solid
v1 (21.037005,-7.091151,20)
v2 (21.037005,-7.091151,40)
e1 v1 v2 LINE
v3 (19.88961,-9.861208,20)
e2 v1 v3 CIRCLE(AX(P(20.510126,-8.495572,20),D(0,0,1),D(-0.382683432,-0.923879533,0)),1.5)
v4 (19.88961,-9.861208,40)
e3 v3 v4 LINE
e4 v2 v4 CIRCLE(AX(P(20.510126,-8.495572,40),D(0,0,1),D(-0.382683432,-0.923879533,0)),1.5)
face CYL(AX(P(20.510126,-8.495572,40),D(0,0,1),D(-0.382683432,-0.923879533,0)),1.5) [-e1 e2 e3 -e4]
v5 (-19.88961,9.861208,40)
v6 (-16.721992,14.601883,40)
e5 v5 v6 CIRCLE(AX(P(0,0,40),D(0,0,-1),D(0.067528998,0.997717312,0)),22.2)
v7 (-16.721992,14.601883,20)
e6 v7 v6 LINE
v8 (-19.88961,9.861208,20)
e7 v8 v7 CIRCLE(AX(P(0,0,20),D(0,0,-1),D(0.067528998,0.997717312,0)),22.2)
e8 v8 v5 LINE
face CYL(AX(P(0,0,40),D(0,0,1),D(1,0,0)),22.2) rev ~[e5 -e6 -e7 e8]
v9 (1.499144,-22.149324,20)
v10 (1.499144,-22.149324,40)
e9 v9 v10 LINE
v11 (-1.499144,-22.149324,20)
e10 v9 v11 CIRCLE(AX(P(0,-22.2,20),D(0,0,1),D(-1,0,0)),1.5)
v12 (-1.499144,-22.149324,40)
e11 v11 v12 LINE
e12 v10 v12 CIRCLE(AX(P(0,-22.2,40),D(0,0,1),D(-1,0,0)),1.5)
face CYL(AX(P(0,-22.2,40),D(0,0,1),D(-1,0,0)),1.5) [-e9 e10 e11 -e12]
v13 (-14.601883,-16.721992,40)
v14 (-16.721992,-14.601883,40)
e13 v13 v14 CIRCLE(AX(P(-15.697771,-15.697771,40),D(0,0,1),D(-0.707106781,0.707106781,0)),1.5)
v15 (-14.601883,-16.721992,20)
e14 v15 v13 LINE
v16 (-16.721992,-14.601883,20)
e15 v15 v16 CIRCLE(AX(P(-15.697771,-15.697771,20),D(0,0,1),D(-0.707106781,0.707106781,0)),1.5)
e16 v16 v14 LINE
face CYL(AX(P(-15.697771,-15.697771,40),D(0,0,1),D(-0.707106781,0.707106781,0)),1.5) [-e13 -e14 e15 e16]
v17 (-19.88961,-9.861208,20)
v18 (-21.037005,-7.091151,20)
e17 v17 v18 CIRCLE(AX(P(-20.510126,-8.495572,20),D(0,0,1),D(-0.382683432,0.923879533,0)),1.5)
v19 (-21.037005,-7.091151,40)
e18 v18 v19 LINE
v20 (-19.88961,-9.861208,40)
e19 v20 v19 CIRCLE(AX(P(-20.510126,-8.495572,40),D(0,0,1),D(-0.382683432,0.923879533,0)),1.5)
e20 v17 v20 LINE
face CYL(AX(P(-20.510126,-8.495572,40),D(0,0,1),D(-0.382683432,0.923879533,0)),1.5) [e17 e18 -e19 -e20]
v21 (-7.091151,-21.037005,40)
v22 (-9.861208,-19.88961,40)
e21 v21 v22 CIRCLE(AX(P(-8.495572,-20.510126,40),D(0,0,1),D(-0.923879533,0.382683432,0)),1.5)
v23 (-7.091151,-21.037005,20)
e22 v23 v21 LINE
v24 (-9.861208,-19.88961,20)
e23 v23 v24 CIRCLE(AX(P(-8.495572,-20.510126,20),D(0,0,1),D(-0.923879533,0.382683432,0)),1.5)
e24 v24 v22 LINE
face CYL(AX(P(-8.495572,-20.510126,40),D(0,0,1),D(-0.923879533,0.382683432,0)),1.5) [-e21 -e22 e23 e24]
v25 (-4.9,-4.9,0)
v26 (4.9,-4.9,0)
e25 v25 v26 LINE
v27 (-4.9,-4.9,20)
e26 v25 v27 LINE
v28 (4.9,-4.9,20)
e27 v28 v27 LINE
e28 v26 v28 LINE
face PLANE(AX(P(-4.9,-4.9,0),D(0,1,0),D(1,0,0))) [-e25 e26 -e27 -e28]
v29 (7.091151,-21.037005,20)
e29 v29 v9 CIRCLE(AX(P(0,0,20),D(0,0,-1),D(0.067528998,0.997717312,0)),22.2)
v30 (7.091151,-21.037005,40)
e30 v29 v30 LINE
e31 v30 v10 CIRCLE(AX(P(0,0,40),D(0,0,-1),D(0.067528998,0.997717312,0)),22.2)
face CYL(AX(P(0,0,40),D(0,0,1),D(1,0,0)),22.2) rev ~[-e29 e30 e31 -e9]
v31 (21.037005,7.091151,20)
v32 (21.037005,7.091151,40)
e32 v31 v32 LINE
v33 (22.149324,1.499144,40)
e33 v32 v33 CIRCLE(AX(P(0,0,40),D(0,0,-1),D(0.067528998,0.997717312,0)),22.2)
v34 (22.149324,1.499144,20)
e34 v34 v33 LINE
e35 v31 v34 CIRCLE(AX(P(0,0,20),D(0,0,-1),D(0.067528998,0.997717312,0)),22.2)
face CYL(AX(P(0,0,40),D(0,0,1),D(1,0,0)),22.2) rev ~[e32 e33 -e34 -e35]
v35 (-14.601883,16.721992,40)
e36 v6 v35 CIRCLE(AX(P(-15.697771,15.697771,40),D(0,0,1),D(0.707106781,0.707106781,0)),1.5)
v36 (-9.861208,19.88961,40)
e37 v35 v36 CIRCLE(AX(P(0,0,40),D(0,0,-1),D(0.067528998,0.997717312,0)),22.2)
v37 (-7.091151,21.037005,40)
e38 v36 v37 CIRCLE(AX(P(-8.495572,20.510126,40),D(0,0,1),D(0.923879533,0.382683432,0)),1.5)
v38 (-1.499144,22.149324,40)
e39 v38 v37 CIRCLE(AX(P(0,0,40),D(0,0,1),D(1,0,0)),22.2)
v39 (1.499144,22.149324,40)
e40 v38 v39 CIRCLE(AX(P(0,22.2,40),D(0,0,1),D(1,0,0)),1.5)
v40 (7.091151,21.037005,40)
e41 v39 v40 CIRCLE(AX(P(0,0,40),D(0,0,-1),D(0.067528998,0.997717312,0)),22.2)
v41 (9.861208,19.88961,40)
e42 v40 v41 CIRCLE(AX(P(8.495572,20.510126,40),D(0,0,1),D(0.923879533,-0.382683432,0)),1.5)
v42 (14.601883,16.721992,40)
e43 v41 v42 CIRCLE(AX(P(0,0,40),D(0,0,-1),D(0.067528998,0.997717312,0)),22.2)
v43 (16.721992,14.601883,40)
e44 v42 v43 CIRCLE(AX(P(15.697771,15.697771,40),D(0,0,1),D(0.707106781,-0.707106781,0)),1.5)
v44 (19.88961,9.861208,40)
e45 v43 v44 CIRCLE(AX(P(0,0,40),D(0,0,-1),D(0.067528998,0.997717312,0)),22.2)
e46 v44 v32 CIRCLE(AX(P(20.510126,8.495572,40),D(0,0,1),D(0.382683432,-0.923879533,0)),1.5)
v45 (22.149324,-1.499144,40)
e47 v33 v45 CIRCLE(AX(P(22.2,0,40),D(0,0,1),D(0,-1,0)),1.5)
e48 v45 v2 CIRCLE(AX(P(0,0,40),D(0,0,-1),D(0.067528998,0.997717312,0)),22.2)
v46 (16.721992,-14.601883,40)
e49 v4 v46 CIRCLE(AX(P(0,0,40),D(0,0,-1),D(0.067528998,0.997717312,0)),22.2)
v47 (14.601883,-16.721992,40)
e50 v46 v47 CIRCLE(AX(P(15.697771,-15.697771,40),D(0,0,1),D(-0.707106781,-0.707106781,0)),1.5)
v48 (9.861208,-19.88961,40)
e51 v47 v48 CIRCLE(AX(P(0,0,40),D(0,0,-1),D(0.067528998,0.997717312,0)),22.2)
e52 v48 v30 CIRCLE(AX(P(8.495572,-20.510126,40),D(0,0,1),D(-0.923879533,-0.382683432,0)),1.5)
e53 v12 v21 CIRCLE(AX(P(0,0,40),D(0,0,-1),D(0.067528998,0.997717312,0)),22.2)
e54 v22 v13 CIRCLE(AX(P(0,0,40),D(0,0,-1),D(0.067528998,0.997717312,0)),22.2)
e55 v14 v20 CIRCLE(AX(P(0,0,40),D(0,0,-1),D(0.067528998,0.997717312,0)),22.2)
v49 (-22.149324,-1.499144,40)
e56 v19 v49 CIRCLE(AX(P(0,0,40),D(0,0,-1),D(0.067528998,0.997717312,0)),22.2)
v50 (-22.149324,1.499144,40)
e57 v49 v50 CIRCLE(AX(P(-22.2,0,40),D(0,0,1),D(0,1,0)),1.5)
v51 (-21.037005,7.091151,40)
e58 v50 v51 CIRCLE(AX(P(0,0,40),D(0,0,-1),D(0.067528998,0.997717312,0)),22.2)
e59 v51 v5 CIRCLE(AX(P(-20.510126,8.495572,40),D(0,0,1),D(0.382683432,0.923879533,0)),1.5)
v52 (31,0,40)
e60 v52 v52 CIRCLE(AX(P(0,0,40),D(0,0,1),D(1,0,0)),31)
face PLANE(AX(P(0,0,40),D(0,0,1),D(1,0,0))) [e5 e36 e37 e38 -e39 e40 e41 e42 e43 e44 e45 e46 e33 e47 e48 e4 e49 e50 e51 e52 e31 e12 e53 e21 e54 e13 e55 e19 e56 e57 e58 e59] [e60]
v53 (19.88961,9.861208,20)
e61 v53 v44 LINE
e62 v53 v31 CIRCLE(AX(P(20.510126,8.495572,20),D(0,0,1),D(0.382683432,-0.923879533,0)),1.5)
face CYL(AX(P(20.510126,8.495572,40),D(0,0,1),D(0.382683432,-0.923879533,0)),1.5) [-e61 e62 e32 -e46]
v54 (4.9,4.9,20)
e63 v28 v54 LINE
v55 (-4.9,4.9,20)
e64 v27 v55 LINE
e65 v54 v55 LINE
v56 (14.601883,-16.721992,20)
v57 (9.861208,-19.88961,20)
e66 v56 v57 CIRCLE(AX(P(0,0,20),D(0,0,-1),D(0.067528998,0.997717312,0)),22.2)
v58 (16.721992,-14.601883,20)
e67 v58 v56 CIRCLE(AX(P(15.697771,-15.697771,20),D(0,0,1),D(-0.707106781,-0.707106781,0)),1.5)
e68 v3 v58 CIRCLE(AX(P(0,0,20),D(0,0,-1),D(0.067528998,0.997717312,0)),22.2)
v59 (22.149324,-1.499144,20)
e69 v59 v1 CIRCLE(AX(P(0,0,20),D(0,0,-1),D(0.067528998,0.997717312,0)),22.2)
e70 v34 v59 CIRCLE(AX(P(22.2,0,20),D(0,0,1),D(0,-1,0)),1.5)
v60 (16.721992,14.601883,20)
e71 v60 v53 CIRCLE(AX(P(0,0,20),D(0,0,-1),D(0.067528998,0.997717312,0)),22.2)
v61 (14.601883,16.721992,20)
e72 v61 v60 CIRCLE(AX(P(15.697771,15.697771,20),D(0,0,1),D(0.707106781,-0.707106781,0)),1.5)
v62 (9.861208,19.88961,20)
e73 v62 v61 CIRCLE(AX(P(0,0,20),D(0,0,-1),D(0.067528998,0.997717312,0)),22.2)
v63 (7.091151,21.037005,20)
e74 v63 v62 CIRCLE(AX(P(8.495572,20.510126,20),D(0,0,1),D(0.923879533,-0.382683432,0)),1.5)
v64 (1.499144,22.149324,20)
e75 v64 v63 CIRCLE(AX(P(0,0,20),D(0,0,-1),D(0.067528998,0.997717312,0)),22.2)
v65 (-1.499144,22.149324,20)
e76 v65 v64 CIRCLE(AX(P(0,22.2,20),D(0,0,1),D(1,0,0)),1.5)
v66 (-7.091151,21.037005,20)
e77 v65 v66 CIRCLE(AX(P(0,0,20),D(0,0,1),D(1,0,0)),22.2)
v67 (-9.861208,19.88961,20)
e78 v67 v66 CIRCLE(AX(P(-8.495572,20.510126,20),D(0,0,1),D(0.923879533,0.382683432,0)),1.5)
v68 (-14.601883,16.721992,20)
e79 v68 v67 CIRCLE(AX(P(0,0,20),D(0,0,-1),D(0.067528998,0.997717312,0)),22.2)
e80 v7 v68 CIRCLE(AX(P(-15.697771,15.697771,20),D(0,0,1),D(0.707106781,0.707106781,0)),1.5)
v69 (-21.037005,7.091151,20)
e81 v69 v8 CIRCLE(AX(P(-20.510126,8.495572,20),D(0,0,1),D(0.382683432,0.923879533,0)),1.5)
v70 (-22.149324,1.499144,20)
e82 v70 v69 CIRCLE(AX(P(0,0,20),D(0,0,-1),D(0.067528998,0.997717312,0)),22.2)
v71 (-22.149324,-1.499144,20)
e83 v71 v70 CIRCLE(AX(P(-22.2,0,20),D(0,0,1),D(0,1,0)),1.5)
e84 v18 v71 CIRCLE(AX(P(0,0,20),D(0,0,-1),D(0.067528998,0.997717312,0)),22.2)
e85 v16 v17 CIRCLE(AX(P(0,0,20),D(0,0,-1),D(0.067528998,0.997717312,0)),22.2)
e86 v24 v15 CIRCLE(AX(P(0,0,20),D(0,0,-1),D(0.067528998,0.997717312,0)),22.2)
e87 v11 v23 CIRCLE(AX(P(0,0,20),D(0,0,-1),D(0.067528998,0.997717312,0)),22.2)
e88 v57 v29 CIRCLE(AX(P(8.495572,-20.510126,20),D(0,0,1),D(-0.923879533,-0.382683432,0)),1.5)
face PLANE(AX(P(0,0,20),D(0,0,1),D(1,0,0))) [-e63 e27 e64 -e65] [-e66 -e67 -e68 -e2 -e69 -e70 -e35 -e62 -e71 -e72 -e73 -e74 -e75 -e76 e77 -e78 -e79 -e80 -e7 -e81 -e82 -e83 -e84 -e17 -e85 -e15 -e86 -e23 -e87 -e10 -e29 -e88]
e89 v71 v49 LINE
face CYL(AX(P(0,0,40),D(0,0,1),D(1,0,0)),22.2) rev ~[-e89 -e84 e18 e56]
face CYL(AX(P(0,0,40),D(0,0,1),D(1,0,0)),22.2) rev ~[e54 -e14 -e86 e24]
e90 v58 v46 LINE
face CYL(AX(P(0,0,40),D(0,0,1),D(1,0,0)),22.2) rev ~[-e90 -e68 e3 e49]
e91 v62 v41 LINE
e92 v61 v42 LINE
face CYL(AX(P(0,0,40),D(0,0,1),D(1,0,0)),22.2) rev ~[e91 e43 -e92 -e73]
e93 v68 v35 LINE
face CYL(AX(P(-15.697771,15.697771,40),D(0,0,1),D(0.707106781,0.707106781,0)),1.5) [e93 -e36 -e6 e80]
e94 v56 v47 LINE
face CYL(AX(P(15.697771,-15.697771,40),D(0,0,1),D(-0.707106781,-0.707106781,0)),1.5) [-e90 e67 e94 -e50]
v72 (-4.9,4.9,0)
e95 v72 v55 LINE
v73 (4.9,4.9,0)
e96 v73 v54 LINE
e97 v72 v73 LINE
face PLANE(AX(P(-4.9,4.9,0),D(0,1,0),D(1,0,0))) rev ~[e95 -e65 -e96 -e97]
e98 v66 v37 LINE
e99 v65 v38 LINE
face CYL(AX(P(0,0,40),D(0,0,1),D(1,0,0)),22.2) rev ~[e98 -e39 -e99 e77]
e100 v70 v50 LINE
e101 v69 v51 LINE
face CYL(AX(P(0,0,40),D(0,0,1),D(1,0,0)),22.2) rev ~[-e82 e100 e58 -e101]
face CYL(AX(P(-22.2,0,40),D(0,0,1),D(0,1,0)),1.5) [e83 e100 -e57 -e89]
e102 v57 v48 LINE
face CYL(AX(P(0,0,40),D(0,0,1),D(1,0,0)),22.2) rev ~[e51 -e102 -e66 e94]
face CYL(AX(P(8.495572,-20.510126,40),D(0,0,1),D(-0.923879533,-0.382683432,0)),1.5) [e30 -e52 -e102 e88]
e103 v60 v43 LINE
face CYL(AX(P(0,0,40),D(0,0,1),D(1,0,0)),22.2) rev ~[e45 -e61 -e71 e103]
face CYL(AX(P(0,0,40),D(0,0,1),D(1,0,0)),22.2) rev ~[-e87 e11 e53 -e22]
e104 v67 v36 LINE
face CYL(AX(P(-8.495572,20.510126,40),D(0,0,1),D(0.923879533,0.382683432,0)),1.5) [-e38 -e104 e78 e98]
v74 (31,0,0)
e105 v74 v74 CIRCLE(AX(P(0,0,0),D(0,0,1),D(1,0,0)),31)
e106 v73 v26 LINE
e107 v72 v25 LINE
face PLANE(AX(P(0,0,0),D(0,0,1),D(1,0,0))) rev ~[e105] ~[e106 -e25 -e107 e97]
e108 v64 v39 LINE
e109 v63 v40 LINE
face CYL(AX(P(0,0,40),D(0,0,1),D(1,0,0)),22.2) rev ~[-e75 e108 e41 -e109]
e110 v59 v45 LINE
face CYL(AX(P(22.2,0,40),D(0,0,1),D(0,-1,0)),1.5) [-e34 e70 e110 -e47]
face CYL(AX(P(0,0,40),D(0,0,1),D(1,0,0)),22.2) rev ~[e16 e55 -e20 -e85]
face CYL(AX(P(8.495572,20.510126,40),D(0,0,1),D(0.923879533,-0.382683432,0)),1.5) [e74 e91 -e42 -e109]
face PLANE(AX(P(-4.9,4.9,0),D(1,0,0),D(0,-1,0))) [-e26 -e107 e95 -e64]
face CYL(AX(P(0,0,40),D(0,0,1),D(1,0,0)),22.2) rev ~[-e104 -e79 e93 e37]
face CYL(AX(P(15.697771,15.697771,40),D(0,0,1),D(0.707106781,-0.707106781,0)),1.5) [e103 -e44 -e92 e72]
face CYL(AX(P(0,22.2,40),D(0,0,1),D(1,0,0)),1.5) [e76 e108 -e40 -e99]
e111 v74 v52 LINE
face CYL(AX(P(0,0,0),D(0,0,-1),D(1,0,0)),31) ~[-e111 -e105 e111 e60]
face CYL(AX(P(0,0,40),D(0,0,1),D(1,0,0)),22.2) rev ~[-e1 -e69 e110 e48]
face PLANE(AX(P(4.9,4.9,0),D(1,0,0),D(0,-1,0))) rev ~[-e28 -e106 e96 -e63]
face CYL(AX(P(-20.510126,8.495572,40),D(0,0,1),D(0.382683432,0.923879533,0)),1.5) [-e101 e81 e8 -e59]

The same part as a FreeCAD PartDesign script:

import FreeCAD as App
import Part
import Sketcher

V = App.Vector
Q = App.Units.Quantity


def add_polygon(sketch, points):
    """Adds a closed chain of lines whose ends are joined by coincident constraints."""
    first, n = sketch.GeometryCount, len(points)
    for a, b in zip(points, points[1:] + points[:1]):
        sketch.addGeometry(Part.LineSegment(App.Vector(*a, 0), App.Vector(*b, 0)), False)
    for i in range(n):
        sketch.addConstraint(Sketcher.Constraint("Coincident", first + i, 2, first + (i + 1) % n, 1))

doc = App.newDocument("Part")
params = doc.addObject("Spreadsheet::Sheet", "Params")
for row, (alias, value) in enumerate([
    ("sketch1_diameter", "62 mm"),
    ("pad1_length", "40 mm"),
    ("sketch2_diameter", "44.4 mm"),
    ("pocket1_length", "20 mm"),
    ("sketch3_diameter", "3 mm"),
    ("pad2_length", "25 mm"),
    ("sketch4_width", "9.8 mm"),
], start=1):
    params.set(f"A{row}", alias)
    params.set(f"B{row}", "=" + value)
    params.setAlias(f"B{row}", alias)

body = doc.addObject("PartDesign::Body", "Body")

sketch1 = body.newObject("Sketcher::SketchObject", "Sketch")
sketch1.AttachmentSupport = (doc.getObject("XY_Plane"), [""])
sketch1.MapMode = "FlatFace"
sketch1.addGeometry(Part.Circle(V(0, 0, 0), V(0, 0, 1), 31), False)
sketch1.addConstraint([
    Sketcher.Constraint("Coincident", 0, 3, -1, 1),
    Sketcher.Constraint("Diameter", 0, Q("62 mm")),
])
sketch1.setExpression("Constraints[1]", "Params.sketch1_diameter")
pad1 = body.newObject("PartDesign::Pad", "Pad")
pad1.Profile = sketch1
pad1.setExpression("Length", "Params.pad1_length")

sketch2 = body.newObject("Sketcher::SketchObject", "Sketch001")
sketch2.AttachmentSupport = (doc.getObject("XY_Plane"), [""])
sketch2.MapMode = "FlatFace"
sketch2.AttachmentOffset = App.Placement(V(0, 0, 40), App.Rotation())
sketch2.addGeometry(Part.Circle(V(0, 0, 0), V(0, 0, 1), 22), False)
sketch2.addConstraint([
    Sketcher.Constraint("Coincident", 0, 3, -1, 1),
    Sketcher.Constraint("Diameter", 0, Q("44.4 mm")),
])
sketch2.setExpression("Constraints[1]", "Params.sketch2_diameter")
pocket1 = body.newObject("PartDesign::Pocket", "Pocket")
pocket1.Profile = sketch2
pocket1.setExpression("Length", "Params.pocket1_length")

sketch3 = body.newObject("Sketcher::SketchObject", "Sketch002")
sketch3.AttachmentSupport = (doc.getObject("XY_Plane"), [""])
sketch3.MapMode = "FlatFace"
sketch3.AttachmentOffset = App.Placement(V(0, 0, 40), App.Rotation())
sketch3.addGeometry(Part.Circle(V(0, 22.2, 0), V(0, 0, 1), 1.5), False)
sketch3.addConstraint([
    Sketcher.Constraint("PointOnObject", 0, 3, -2),
    Sketcher.Constraint("Diameter", 0, Q("3 mm")),
    Sketcher.Constraint("DistanceY", -1, 1, 0, 3, Q("22.2 mm")),
])
sketch3.setExpression("Constraints[1]", "Params.sketch3_diameter")
pad2 = body.newObject("PartDesign::Pad", "Pad001")
pad2.Profile = sketch3
pad2.setExpression("Length", "Params.pad2_length")
pad2.Reversed = True
doc.recompute()

polarpattern = body.newObject("PartDesign::PolarPattern", "PolarPattern")
polarpattern.Originals = [pad2]
polarpattern.Axis = (doc.getObject("Z_Axis"), [""])
polarpattern.Angle = 360
polarpattern.Occurrences = 16
body.Tip = polarpattern

sketch4 = body.newObject("Sketcher::SketchObject", "Sketch003")
sketch4.AttachmentSupport = (doc.getObject("XY_Plane"), [""])
sketch4.MapMode = "FlatFace"
add_polygon(sketch4, [(-5, -5), (-5, 5), (5, 5), (5, -5)])
sketch4.addConstraint([
    Sketcher.Constraint("Vertical", 0),
    Sketcher.Constraint("Horizontal", 1),
    Sketcher.Constraint("Vertical", 2),
    Sketcher.Constraint("Horizontal", 3),
    Sketcher.Constraint("Symmetric", 0, 2, 2, 2, -1, 1),
    Sketcher.Constraint("Equal", 3, 0),
    Sketcher.Constraint("DistanceX", 1, 1, 1, 2, Q("9.8 mm")),
])
sketch4.setExpression("Constraints[10]", "Params.sketch4_width")
pocket2 = body.newObject("PartDesign::Pocket", "Pocket001")
pocket2.Profile = sketch4
pocket2.Type = "ThroughAll"
pocket2.Reversed = True

doc.recompute()
